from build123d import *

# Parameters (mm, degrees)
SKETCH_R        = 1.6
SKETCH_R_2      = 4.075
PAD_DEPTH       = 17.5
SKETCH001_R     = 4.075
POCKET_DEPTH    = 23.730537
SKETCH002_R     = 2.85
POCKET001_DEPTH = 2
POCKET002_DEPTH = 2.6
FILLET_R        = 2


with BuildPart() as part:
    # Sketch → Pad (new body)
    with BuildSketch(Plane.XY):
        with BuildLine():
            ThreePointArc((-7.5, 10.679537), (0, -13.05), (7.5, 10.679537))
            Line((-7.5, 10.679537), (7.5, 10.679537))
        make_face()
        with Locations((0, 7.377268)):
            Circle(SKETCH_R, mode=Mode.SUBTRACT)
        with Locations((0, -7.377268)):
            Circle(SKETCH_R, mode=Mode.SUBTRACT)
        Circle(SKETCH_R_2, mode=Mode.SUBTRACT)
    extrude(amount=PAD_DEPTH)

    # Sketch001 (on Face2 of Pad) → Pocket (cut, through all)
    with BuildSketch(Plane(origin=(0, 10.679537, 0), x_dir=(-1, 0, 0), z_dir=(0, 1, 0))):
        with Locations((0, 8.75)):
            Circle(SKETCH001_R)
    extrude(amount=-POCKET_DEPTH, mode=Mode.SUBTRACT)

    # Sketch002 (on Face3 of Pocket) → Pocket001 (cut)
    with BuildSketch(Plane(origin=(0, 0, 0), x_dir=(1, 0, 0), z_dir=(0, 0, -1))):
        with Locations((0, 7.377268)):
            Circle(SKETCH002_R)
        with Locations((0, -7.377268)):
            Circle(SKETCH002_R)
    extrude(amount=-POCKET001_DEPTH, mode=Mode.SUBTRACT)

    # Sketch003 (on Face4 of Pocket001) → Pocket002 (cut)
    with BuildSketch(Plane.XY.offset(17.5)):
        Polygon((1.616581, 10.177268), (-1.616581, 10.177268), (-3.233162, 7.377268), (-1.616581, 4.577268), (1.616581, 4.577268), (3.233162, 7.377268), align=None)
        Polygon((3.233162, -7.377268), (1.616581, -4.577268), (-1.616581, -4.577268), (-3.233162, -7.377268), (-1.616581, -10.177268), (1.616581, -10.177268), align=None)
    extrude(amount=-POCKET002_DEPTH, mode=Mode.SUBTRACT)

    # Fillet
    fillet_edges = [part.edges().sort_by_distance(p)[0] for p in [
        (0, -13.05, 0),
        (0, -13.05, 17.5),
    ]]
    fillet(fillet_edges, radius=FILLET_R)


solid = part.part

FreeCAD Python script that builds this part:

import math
import FreeCAD as App
import Part
import Sketcher
from FreeCAD import Vector
Q = App.Units.Quantity


def edges_at(feature, points):
    """Names of the edges that pass closest to the given points."""
    edges = feature.Shape.Edges
    near = lambda p: min(range(len(edges)), key=lambda i: edges[i].distToShape(Part.Vertex(*p))[0])
    return sorted({f"Edge{near(p) + 1}" for p in points})

doc = App.newDocument("Part")
body = doc.addObject("PartDesign::Body", "Body")

sketch1 = body.newObject("Sketcher::SketchObject", "Sketch")
sketch1.AttachmentSupport = (doc.getObject("XY_Plane"), [""])
sketch1.MapMode = "FlatFace"
sketch1.addGeometry(Part.ArcOfCircle(Part.Circle(Vector(0, 0, 0), Vector(0, 0, 1), 13.1), math.radians(125), math.radians(415)), False)
sketch1.addGeometry(Part.LineSegment(Vector(7.5, 10.7, 0), Vector(-7.5, 10.7, 0)), False)
sketch1.addGeometry(Part.Circle(Vector(0, -7.4, 0), Vector(0, 0, 1), 1.6), False)
sketch1.addGeometry(Part.Circle(Vector(0, 0, 0), Vector(0, 0, 1), 4.1), False)
sketch1.addGeometry(Part.Circle(Vector(0, 7.4, 0), Vector(0, 0, 1), 1.6), False)
sketch1.addConstraint(Sketcher.Constraint("Coincident", 0, 1, 1, 2))
sketch1.addConstraint(Sketcher.Constraint("Coincident", 1, 1, 0, 2))
sketch1.addConstraint(Sketcher.Constraint("Horizontal", 1))
sketch1.addConstraint(Sketcher.Constraint("Coincident", 0, 3, -1, 1))
sketch1.addConstraint(Sketcher.Constraint("Coincident", 3, 3, -1, 1))
sketch1.addConstraint(Sketcher.Constraint("Equal", 2, 4))
sketch1.addConstraint(Sketcher.Constraint("Symmetric", 2, 3, 4, 3, -1, 1))
sketch1.addConstraint(Sketcher.Constraint("PointOnObject", 2, 3, -2))
sketch1.addConstraint(Sketcher.Constraint("Diameter", 2, 3.2))
sketch1.addConstraint(Sketcher.Constraint("Diameter", 3, 8.15))
sketch1.addConstraint(Sketcher.Constraint("DistanceX", 1, 2, 1, 1, 15.0))
sketch1.addConstraint(Sketcher.Constraint("Radius", 0, 13.05))
sketch1.addConstraint(Sketcher.Constraint("DistanceY", 2, 3, 0, 3, 7.377268))
pad1 = body.newObject("PartDesign::Pad", "Pad")
pad1.Profile = sketch1
pad1.Length = 17.5

sketch2 = body.newObject("Sketcher::SketchObject", "Sketch001")
sketch2.AttachmentSupport = (doc.getObject("XZ_Plane"), [""])
sketch2.MapMode = "FlatFace"
sketch2.AttachmentOffset = App.Placement(Vector(0, 0, -10.679537), App.Rotation())
sketch2.addGeometry(Part.Circle(Vector(0, 8.8, 0), Vector(0, 0, 1), 4.1), False)
sketch2.addConstraint(Sketcher.Constraint("PointOnObject", 0, 3, -2))
sketch2.addConstraint(Sketcher.Constraint("Diameter", 0, 8.15))
sketch2.addConstraint(Sketcher.Constraint("DistanceY", -1, 1, 0, 3, 8.75))
pocket1 = body.newObject("PartDesign::Pocket", "Pocket")
pocket1.Profile = sketch2
pocket1.Type = "ThroughAll"
pocket1.Reversed = True

sketch3 = body.newObject("Sketcher::SketchObject", "Sketch002")
sketch3.AttachmentSupport = (doc.getObject("XY_Plane"), [""])
sketch3.MapMode = "FlatFace"
sketch3.addGeometry(Part.Circle(Vector(0, -7.4, 0), Vector(0, 0, 1), 2.9), False)
sketch3.addGeometry(Part.Circle(Vector(0, 7.4, 0), Vector(0, 0, 1), 2.9), False)
sketch3.addConstraint(Sketcher.Constraint("Equal", 0, 1))
sketch3.addConstraint(Sketcher.Constraint("Symmetric", 0, 3, 1, 3, -1, 1))
sketch3.addConstraint(Sketcher.Constraint("PointOnObject", 0, 3, -2))
sketch3.addConstraint(Sketcher.Constraint("Diameter", 0, 5.7))
sketch3.addConstraint(Sketcher.Constraint("DistanceY", 0, 3, -1, 1, 7.377268))
pocket2 = body.newObject("PartDesign::Pocket", "Pocket001")
pocket2.Profile = sketch3
pocket2.Length = 2
pocket2.Reversed = True

sketch4 = body.newObject("Sketcher::SketchObject", "Sketch003")
sketch4.AttachmentSupport = (doc.getObject("XY_Plane"), [""])
sketch4.MapMode = "FlatFace"
sketch4.AttachmentOffset = App.Placement(Vector(0, 0, 17.5), App.Rotation())
sketch4.addGeometry(Part.LineSegment(Vector(1.6, 10.2, 0), Vector(-1.6, 10.2, 0)), False)
sketch4.addGeometry(Part.LineSegment(Vector(-1.6, 10.2, 0), Vector(-3.2, 7.4, 0)), False)
sketch4.addGeometry(Part.LineSegment(Vector(-3.2, 7.4, 0), Vector(-1.6, 4.6, 0)), False)
sketch4.addGeometry(Part.LineSegment(Vector(-1.6, 4.6, 0), Vector(1.6, 4.6, 0)), False)
sketch4.addGeometry(Part.LineSegment(Vector(1.6, 4.6, 0), Vector(3.2, 7.4, 0)), False)
sketch4.addGeometry(Part.LineSegment(Vector(3.2, 7.4, 0), Vector(1.6, 10.2, 0)), False)
sketch4.addGeometry(Part.LineSegment(Vector(3.2, -7.4, 0), Vector(1.6, -4.6, 0)), False)
sketch4.addGeometry(Part.LineSegment(Vector(1.6, -4.6, 0), Vector(-1.6, -4.6, 0)), False)
sketch4.addGeometry(Part.LineSegment(Vector(-1.6, -4.6, 0), Vector(-3.2, -7.4, 0)), False)
sketch4.addGeometry(Part.LineSegment(Vector(-3.2, -7.4, 0), Vector(-1.6, -10.2, 0)), False)
sketch4.addGeometry(Part.LineSegment(Vector(-1.6, -10.2, 0), Vector(1.6, -10.2, 0)), False)
sketch4.addGeometry(Part.LineSegment(Vector(1.6, -10.2, 0), Vector(3.2, -7.4, 0)), False)
sketch4.addConstraint(Sketcher.Constraint("Coincident", 0, 2, 1, 1))
sketch4.addConstraint(Sketcher.Constraint("Coincident", 1, 2, 2, 1))
sketch4.addConstraint(Sketcher.Constraint("Coincident", 2, 2, 3, 1))
sketch4.addConstraint(Sketcher.Constraint("Coincident", 3, 2, 4, 1))
sketch4.addConstraint(Sketcher.Constraint("Coincident", 4, 2, 5, 1))
sketch4.addConstraint(Sketcher.Constraint("Coincident", 5, 2, 0, 1))
sketch4.addConstraint(Sketcher.Constraint("Coincident", 6, 2, 7, 1))
sketch4.addConstraint(Sketcher.Constraint("Coincident", 7, 2, 8, 1))
sketch4.addConstraint(Sketcher.Constraint("Coincident", 8, 2, 9, 1))
sketch4.addConstraint(Sketcher.Constraint("Coincident", 9, 2, 10, 1))
sketch4.addConstraint(Sketcher.Constraint("Coincident", 10, 2, 11, 1))
sketch4.addConstraint(Sketcher.Constraint("Coincident", 11, 2, 6, 1))
sketch4.addConstraint(Sketcher.Constraint("Horizontal", 0))
sketch4.addConstraint(Sketcher.Constraint("Horizontal", 3))
sketch4.addConstraint(Sketcher.Constraint("Horizontal", 7))
sketch4.addConstraint(Sketcher.Constraint("Horizontal", 10))
sketch4.addConstraint(Sketcher.Constraint("Symmetric", 2, 2, 6, 2, -1, 1))
sketch4.addConstraint(Sketcher.Constraint("Symmetric", 4, 2, 8, 2, -1, 1))
sketch4.addConstraint(Sketcher.Constraint("Symmetric", 5, 2, 9, 2, -1, 1))
sketch4.addConstraint(Sketcher.Constraint("Symmetric", 1, 2, 11, 2, -1, 1))
sketch4.addConstraint(Sketcher.Constraint("Symmetric", 1, 2, 4, 2, -2))
sketch4.addConstraint(Sketcher.Constraint("Parallel", 1, 4))
sketch4.addConstraint(Sketcher.Constraint("Parallel", 2, 5))
sketch4.addConstraint(Sketcher.Constraint("Parallel", 4, 8))
sketch4.addConstraint(Sketcher.Constraint("Parallel", 8, 11))
sketch4.addConstraint(Sketcher.Constraint("Vertical", 0, 2, 2, 2))
sketch4.addConstraint(Sketcher.Constraint("Vertical", 3, 2, 5, 2))
sketch4.addConstraint(Sketcher.Constraint("Angle", 1, Q("-120.000004 deg")))
sketch4.addConstraint(Sketcher.Constraint("DistanceY", 1, 2, 0, 2, 2.8))
sketch4.addConstraint(Sketcher.Constraint("DistanceX", 0, 2, 0, 1, 3.233162))
sketch4.addConstraint(Sketcher.Constraint("DistanceY", -1, 1, 0, 2, 10.177268))
pocket3 = body.newObject("PartDesign::Pocket", "Pocket002")
pocket3.Profile = sketch4
pocket3.Length = 2.6
doc.recompute()

fillet = body.newObject("PartDesign::Fillet", "Fillet")
fillet.Base = (pocket3, edges_at(pocket3, [(0, -13.05, 0), (0, -13.05, 17.5)]))
fillet.Radius = 2

doc.recompute()
